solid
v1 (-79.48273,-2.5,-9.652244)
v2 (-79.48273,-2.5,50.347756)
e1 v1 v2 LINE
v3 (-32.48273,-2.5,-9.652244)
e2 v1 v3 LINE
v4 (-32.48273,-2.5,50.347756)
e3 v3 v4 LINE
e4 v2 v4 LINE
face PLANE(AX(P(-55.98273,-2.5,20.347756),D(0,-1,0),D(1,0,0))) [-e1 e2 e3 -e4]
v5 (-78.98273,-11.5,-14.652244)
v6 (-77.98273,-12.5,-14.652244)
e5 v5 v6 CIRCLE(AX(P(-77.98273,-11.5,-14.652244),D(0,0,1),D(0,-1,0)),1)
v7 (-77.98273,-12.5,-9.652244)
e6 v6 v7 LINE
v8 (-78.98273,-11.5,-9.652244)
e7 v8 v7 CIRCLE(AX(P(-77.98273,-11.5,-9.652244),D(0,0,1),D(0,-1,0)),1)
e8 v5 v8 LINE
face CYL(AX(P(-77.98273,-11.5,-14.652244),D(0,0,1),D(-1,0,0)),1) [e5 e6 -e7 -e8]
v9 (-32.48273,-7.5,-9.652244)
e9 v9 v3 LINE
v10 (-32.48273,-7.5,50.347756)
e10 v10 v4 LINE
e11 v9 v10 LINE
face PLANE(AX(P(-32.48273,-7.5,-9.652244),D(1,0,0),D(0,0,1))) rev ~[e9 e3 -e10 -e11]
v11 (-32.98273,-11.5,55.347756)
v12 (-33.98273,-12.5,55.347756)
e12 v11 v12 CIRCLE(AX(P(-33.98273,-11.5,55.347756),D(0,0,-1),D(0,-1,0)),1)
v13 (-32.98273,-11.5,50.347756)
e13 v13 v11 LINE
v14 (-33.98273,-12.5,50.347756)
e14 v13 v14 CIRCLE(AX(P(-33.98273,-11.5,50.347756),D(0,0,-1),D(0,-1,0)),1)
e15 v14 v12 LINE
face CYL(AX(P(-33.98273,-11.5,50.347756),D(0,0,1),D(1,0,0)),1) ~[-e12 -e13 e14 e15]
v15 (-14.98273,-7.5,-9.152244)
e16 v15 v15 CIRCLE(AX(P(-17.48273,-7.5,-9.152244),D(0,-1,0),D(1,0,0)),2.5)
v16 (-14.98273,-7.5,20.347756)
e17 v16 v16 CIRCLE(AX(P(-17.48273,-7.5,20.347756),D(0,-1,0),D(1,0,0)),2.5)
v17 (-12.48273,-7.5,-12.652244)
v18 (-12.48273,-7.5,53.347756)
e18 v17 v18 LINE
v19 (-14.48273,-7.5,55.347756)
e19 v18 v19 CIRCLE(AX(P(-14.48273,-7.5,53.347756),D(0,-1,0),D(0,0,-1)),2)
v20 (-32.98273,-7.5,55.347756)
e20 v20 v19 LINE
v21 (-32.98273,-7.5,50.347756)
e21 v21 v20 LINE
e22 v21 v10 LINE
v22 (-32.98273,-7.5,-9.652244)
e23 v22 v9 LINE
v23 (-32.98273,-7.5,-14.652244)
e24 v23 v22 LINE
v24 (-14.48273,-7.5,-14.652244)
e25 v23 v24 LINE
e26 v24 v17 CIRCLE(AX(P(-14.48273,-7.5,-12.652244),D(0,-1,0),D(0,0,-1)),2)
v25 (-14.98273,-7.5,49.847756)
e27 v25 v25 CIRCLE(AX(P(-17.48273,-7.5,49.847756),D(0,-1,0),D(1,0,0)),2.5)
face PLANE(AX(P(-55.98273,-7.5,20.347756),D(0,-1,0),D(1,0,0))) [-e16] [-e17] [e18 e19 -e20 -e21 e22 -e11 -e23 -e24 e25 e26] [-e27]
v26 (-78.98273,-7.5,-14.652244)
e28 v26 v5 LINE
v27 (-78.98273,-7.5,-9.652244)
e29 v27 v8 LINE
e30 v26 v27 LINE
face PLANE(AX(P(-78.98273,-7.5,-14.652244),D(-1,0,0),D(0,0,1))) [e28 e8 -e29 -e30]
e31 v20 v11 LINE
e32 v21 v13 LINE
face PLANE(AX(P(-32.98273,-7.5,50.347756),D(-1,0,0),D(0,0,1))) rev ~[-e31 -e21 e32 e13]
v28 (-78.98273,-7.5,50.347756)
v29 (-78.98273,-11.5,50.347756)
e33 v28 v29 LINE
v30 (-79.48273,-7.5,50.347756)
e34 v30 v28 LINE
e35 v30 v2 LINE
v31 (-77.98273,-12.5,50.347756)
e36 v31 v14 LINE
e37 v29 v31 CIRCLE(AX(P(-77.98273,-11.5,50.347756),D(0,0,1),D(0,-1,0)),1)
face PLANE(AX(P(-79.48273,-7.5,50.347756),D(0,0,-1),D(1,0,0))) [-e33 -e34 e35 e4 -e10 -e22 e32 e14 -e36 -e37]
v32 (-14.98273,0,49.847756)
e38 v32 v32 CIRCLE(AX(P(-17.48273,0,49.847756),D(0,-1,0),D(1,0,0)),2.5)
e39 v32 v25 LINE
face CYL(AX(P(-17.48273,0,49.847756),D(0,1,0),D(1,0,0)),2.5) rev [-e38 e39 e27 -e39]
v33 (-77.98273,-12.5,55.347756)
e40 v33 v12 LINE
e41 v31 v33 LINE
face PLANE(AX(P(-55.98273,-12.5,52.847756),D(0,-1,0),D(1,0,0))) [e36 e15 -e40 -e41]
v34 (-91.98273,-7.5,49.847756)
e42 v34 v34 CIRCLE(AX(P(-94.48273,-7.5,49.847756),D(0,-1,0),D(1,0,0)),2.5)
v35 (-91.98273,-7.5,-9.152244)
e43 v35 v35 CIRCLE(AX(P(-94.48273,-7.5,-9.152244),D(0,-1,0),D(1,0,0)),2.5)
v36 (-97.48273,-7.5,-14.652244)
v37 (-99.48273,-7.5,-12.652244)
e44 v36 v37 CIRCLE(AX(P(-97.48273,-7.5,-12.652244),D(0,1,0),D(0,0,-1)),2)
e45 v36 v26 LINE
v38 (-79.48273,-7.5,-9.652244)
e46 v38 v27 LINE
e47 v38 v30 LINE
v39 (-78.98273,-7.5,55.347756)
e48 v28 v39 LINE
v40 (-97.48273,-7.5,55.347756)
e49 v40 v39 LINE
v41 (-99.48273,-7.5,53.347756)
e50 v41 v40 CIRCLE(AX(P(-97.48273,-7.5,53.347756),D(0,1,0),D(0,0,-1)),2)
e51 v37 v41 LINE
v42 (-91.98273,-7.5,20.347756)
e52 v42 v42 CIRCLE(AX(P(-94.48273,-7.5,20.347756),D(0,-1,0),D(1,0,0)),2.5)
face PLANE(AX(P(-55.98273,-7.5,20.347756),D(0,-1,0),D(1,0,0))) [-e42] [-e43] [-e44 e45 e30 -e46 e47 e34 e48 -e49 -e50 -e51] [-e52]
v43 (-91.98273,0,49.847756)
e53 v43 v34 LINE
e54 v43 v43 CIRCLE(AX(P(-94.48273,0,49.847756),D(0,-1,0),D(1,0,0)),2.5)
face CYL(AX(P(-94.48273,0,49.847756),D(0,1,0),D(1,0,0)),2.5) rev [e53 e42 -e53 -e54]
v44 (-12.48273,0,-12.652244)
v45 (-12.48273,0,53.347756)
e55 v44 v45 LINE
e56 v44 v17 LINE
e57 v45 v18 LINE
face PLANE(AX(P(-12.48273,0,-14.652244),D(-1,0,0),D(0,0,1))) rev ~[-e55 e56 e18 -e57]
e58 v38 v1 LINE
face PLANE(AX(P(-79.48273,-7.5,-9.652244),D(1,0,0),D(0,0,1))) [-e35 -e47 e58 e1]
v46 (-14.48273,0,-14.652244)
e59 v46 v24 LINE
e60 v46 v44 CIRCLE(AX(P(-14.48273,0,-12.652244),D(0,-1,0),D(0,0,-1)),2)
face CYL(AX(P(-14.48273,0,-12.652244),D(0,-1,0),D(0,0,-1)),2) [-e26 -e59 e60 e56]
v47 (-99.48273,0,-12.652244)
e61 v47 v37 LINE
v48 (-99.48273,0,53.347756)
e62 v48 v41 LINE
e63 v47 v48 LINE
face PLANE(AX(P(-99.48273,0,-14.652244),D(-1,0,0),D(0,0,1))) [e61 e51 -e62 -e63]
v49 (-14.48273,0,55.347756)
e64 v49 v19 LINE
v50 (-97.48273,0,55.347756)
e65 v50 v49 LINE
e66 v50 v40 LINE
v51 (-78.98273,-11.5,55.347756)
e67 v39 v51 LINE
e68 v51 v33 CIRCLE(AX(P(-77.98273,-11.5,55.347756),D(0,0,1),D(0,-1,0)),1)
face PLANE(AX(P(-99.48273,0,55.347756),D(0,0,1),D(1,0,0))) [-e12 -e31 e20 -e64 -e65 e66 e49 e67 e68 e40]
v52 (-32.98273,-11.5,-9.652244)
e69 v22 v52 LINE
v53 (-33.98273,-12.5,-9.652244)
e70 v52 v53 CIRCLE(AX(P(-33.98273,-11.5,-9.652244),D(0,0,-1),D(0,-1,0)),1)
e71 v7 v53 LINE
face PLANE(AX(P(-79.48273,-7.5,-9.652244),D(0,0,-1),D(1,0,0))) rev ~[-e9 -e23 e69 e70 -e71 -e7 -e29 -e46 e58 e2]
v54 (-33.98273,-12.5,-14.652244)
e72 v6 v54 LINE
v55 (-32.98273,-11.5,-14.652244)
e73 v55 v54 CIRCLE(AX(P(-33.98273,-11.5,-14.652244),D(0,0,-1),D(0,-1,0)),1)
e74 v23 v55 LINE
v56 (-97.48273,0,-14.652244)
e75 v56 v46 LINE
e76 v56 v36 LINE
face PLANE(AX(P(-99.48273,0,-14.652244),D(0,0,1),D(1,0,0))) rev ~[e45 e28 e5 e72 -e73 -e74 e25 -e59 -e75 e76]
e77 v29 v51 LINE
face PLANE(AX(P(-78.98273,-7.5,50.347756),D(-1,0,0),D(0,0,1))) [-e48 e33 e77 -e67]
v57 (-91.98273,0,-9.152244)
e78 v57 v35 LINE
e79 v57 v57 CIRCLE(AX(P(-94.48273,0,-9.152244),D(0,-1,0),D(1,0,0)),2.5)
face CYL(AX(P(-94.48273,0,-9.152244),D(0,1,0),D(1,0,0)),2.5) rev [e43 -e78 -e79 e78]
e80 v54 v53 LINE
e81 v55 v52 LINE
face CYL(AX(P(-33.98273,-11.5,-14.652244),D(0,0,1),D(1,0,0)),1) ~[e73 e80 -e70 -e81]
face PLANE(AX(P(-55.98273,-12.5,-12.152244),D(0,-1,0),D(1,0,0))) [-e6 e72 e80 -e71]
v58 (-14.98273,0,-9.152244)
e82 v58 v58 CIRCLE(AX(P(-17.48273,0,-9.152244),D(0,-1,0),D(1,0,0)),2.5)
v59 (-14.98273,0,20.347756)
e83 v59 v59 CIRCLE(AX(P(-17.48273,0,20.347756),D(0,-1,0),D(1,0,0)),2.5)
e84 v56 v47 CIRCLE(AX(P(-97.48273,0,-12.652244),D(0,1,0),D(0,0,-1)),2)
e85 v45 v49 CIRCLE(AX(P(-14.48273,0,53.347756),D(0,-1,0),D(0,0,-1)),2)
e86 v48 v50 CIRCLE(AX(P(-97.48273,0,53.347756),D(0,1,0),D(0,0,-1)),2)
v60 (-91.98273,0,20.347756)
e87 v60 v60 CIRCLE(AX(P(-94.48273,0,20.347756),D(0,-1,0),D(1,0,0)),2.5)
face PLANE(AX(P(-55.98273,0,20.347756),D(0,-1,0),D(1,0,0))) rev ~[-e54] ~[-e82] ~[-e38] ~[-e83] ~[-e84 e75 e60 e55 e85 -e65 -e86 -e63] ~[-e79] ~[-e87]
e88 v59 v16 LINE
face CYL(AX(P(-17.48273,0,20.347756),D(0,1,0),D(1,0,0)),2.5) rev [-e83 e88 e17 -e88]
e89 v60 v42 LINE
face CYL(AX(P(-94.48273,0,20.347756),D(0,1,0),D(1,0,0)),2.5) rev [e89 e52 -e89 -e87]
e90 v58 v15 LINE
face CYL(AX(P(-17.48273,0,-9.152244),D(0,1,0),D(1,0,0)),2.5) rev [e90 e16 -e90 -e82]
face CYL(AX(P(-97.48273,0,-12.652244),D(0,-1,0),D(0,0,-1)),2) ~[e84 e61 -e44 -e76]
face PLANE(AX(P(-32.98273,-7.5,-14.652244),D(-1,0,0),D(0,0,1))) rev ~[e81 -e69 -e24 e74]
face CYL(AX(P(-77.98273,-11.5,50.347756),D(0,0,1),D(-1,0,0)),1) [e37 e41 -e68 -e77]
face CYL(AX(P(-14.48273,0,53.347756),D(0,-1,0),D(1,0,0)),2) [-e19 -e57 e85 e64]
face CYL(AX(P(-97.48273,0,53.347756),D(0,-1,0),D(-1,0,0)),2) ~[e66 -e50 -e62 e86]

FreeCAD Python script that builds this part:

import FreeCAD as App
import Part
import Sketcher
from FreeCAD import Vector
Q = App.Units.Quantity


def edges_at(feature, points):
    """Names of the edges that pass closest to the given points."""
    edges = feature.Shape.Edges
    near = lambda p: min(range(len(edges)), key=lambda i: edges[i].distToShape(Part.Vertex(*p))[0])
    return sorted({f"Edge{near(p) + 1}" for p in points})


def add_polygon(sketch, points):
    """Adds a closed chain of lines whose ends are joined by coincident constraints."""
    first, n = sketch.GeometryCount, len(points)
    for a, b in zip(points, points[1:] + points[:1]):
        sketch.addGeometry(Part.LineSegment(App.Vector(*a, 0), App.Vector(*b, 0)), False)
    for i in range(n):
        sketch.addConstraint(Sketcher.Constraint("Coincident", first + i, 2, first + (i + 1) % n, 1))

doc = App.newDocument("Part")
params = doc.addObject("Spreadsheet::Sheet", "Params")
for row, (alias, value) in enumerate([
    ("sketch1_diameter", "5 mm"),
    ("sketch1_width", "87 mm"),
    ("sketch1_height", "70 mm"),
    ("pad1_length", "7.5 mm"),
    ("sketch2_width", "47 mm"),
    ("sketch2_height", "60 mm"),
    ("pocket1_length", "5 mm"),
    ("sketch3_width", "46 mm"),
    ("sketch3_height", "5 mm"),
    ("pad2_length", "5 mm"),
    ("fillet_radius", "1 mm"),
    ("fillet2_radius", "2 mm"),
], start=1):
    params.set(f"A{row}", alias)
    params.set(f"B{row}", "=" + value)
    params.setAlias(f"B{row}", alias)

body = doc.addObject("PartDesign::Body", "Body")

sketch1 = body.newObject("Sketcher::SketchObject", "Sketch")
sketch1.AttachmentSupport = (doc.getObject("XZ_Plane"), [""])
sketch1.MapMode = "FlatFace"
add_polygon(sketch1, [(-99.5, 55.3), (-99.5, -14.7), (-12.5, -14.7), (-12.5, 55.3)])
sketch1.addGeometry(Part.Circle(Vector(-94.5, -9.2, 0), Vector(0, 0, 1), 2.5), False)
sketch1.addGeometry(Part.Circle(Vector(-17.5, -9.2, 0), Vector(0, 0, 1), 2.5), False)
sketch1.addGeometry(Part.Circle(Vector(-94.5, 20.3, 0), Vector(0, 0, 1), 2.5), False)
sketch1.addGeometry(Part.Circle(Vector(-94.5, 49.8, 0), Vector(0, 0, 1), 2.5), False)
sketch1.addGeometry(Part.Circle(Vector(-17.5, 20.3, 0), Vector(0, 0, 1), 2.5), False)
sketch1.addGeometry(Part.Circle(Vector(-17.5, 49.8, 0), Vector(0, 0, 1), 2.5), False)
sketch1.addConstraint([
    Sketcher.Constraint("Vertical", 0),
    Sketcher.Constraint("Horizontal", 1),
    Sketcher.Constraint("Vertical", 2),
    Sketcher.Constraint("Horizontal", 3),
    Sketcher.Constraint("Equal", 4, 5),
    Sketcher.Constraint("Equal", 5, 6),
    Sketcher.Constraint("Equal", 6, 7),
    Sketcher.Constraint("Equal", 7, 8),
    Sketcher.Constraint("Equal", 8, 9),
    Sketcher.Constraint("Horizontal", 4, 3, 5, 3),
    Sketcher.Constraint("Horizontal", 6, 3, 8, 3),
    Sketcher.Constraint("Horizontal", 7, 3, 9, 3),
    Sketcher.Constraint("Vertical", 4, 3, 6, 3),
    Sketcher.Constraint("Vertical", 6, 3, 7, 3),
    Sketcher.Constraint("Vertical", 5, 3, 8, 3),
    Sketcher.Constraint("Vertical", 8, 3, 9, 3),
    Sketcher.Constraint("Diameter", 4, Q("5 mm")),
    Sketcher.Constraint("DistanceX", 1, 1, 1, 2, Q("87 mm")),
    Sketcher.Constraint("DistanceY", 0, 2, 0, 1, Q("70 mm")),
    Sketcher.Constraint("DistanceX", 4, 3, 5, 3, Q("77 mm")),
    Sketcher.Constraint("DistanceY", 4, 3, 7, 3, Q("59 mm")),
    Sketcher.Constraint("DistanceX", 0, 2, 4, 3, Q("5 mm")),
    Sketcher.Constraint("DistanceY", 0, 2, 6, 3, Q("35 mm")),
    Sketcher.Constraint("DistanceY", 4, 3, 6, 3, Q("29.5 mm")),
    Sketcher.Constraint("DistanceX", 4, 3, -1, 1, Q("94.48273 mm")),
    Sketcher.Constraint("DistanceY", 4, 3, -1, 1, Q("9.152244 mm")),
])
sketch1.setExpression("Constraints[20]", "Params.sketch1_diameter")
sketch1.setExpression("Constraints[21]", "Params.sketch1_width")
sketch1.setExpression("Constraints[22]", "Params.sketch1_height")
pad1 = body.newObject("PartDesign::Pad", "Pad")
pad1.Profile = sketch1
pad1.setExpression("Length", "Params.pad1_length")

sketch2 = body.newObject("Sketcher::SketchObject", "Sketch001")
sketch2.AttachmentSupport = (doc.getObject("XZ_Plane"), [""])
sketch2.MapMode = "FlatFace"
sketch2.AttachmentOffset = App.Placement(Vector(0, 0, 7.5), App.Rotation())
add_polygon(sketch2, [(-79, 50), (-79, -10), (-32, -10), (-32, 50)])
sketch2.addConstraint([
    Sketcher.Constraint("Vertical", 0),
    Sketcher.Constraint("Horizontal", 1),
    Sketcher.Constraint("Vertical", 2),
    Sketcher.Constraint("Horizontal", 3),
    Sketcher.Constraint("DistanceX", 1, 1, 1, 2, Q("47 mm")),
    Sketcher.Constraint("DistanceY", 0, 2, 0, 1, Q("60 mm")),
    Sketcher.Constraint("DistanceX", 0, 2, -1, 1, Q("79.48273 mm")),
    Sketcher.Constraint("DistanceY", 0, 2, -1, 1, Q("9.652244 mm")),
])
sketch2.setExpression("Constraints[8]", "Params.sketch2_width")
sketch2.setExpression("Constraints[9]", "Params.sketch2_height")
pocket1 = body.newObject("PartDesign::Pocket", "Pocket")
pocket1.Profile = sketch2
pocket1.setExpression("Length", "Params.pocket1_length")

sketch3 = body.newObject("Sketcher::SketchObject", "Sketch002")
sketch3.AttachmentSupport = (doc.getObject("XZ_Plane"), [""])
sketch3.MapMode = "FlatFace"
sketch3.AttachmentOffset = App.Placement(Vector(0, 0, 7.5), App.Rotation())
add_polygon(sketch3, [(-79, 55), (-79, 50), (-33, 50), (-33, 55)])
add_polygon(sketch3, [(-79, -10), (-79, -15), (-33, -15), (-33, -10)])
sketch3.addConstraint([
    Sketcher.Constraint("Vertical", 0),
    Sketcher.Constraint("Horizontal", 1),
    Sketcher.Constraint("Vertical", 2),
    Sketcher.Constraint("Horizontal", 3),
    Sketcher.Constraint("Vertical", 4),
    Sketcher.Constraint("Horizontal", 5),
    Sketcher.Constraint("Vertical", 6),
    Sketcher.Constraint("Horizontal", 7),
    Sketcher.Constraint("Vertical", 3, 2, 4, 2),
    Sketcher.Constraint("Vertical", 2, 2, 5, 2),
    Sketcher.Constraint("Equal", 2, 4),
    Sketcher.Constraint("DistanceX", 1, 1, 1, 2, Q("46 mm")),
    Sketcher.Constraint("DistanceY", 0, 2, 0, 1, Q("5 mm")),
    Sketcher.Constraint("DistanceY", 4, 2, 0, 2, Q("65 mm")),
    Sketcher.Constraint("DistanceX", 0, 2, -1, 1, Q("78.98273 mm")),
    Sketcher.Constraint("DistanceY", -1, 1, 0, 2, Q("50.347756 mm")),
])
sketch3.setExpression("Constraints[19]", "Params.sketch3_width")
sketch3.setExpression("Constraints[20]", "Params.sketch3_height")
pad2 = body.newObject("PartDesign::Pad", "Pad001")
pad2.Profile = sketch3
pad2.setExpression("Length", "Params.pad2_length")
doc.recompute()

fillet = body.newObject("PartDesign::Fillet", "Fillet")
fillet.Base = (pad2, edges_at(pad2, [
    (-78.983, -12.5, 52.848),
    (-32.983, -12.5, 52.848),
    (-32.983, -12.5, -12.152),
    (-78.983, -12.5, -12.152),
]))
fillet.setExpression("Radius", "Params.fillet_radius")
doc.recompute()

fillet2 = body.newObject("PartDesign::Fillet", "Fillet001")
fillet2.Base = (fillet, edges_at(fillet, [
    (-99.483, -3.75, -14.652),
    (-12.483, -3.75, -14.652),
    (-12.483, -3.75, 55.348),
    (-99.483, -3.75, 55.348),
]))
fillet2.setExpression("Radius", "Params.fillet2_radius")

doc.recompute()
